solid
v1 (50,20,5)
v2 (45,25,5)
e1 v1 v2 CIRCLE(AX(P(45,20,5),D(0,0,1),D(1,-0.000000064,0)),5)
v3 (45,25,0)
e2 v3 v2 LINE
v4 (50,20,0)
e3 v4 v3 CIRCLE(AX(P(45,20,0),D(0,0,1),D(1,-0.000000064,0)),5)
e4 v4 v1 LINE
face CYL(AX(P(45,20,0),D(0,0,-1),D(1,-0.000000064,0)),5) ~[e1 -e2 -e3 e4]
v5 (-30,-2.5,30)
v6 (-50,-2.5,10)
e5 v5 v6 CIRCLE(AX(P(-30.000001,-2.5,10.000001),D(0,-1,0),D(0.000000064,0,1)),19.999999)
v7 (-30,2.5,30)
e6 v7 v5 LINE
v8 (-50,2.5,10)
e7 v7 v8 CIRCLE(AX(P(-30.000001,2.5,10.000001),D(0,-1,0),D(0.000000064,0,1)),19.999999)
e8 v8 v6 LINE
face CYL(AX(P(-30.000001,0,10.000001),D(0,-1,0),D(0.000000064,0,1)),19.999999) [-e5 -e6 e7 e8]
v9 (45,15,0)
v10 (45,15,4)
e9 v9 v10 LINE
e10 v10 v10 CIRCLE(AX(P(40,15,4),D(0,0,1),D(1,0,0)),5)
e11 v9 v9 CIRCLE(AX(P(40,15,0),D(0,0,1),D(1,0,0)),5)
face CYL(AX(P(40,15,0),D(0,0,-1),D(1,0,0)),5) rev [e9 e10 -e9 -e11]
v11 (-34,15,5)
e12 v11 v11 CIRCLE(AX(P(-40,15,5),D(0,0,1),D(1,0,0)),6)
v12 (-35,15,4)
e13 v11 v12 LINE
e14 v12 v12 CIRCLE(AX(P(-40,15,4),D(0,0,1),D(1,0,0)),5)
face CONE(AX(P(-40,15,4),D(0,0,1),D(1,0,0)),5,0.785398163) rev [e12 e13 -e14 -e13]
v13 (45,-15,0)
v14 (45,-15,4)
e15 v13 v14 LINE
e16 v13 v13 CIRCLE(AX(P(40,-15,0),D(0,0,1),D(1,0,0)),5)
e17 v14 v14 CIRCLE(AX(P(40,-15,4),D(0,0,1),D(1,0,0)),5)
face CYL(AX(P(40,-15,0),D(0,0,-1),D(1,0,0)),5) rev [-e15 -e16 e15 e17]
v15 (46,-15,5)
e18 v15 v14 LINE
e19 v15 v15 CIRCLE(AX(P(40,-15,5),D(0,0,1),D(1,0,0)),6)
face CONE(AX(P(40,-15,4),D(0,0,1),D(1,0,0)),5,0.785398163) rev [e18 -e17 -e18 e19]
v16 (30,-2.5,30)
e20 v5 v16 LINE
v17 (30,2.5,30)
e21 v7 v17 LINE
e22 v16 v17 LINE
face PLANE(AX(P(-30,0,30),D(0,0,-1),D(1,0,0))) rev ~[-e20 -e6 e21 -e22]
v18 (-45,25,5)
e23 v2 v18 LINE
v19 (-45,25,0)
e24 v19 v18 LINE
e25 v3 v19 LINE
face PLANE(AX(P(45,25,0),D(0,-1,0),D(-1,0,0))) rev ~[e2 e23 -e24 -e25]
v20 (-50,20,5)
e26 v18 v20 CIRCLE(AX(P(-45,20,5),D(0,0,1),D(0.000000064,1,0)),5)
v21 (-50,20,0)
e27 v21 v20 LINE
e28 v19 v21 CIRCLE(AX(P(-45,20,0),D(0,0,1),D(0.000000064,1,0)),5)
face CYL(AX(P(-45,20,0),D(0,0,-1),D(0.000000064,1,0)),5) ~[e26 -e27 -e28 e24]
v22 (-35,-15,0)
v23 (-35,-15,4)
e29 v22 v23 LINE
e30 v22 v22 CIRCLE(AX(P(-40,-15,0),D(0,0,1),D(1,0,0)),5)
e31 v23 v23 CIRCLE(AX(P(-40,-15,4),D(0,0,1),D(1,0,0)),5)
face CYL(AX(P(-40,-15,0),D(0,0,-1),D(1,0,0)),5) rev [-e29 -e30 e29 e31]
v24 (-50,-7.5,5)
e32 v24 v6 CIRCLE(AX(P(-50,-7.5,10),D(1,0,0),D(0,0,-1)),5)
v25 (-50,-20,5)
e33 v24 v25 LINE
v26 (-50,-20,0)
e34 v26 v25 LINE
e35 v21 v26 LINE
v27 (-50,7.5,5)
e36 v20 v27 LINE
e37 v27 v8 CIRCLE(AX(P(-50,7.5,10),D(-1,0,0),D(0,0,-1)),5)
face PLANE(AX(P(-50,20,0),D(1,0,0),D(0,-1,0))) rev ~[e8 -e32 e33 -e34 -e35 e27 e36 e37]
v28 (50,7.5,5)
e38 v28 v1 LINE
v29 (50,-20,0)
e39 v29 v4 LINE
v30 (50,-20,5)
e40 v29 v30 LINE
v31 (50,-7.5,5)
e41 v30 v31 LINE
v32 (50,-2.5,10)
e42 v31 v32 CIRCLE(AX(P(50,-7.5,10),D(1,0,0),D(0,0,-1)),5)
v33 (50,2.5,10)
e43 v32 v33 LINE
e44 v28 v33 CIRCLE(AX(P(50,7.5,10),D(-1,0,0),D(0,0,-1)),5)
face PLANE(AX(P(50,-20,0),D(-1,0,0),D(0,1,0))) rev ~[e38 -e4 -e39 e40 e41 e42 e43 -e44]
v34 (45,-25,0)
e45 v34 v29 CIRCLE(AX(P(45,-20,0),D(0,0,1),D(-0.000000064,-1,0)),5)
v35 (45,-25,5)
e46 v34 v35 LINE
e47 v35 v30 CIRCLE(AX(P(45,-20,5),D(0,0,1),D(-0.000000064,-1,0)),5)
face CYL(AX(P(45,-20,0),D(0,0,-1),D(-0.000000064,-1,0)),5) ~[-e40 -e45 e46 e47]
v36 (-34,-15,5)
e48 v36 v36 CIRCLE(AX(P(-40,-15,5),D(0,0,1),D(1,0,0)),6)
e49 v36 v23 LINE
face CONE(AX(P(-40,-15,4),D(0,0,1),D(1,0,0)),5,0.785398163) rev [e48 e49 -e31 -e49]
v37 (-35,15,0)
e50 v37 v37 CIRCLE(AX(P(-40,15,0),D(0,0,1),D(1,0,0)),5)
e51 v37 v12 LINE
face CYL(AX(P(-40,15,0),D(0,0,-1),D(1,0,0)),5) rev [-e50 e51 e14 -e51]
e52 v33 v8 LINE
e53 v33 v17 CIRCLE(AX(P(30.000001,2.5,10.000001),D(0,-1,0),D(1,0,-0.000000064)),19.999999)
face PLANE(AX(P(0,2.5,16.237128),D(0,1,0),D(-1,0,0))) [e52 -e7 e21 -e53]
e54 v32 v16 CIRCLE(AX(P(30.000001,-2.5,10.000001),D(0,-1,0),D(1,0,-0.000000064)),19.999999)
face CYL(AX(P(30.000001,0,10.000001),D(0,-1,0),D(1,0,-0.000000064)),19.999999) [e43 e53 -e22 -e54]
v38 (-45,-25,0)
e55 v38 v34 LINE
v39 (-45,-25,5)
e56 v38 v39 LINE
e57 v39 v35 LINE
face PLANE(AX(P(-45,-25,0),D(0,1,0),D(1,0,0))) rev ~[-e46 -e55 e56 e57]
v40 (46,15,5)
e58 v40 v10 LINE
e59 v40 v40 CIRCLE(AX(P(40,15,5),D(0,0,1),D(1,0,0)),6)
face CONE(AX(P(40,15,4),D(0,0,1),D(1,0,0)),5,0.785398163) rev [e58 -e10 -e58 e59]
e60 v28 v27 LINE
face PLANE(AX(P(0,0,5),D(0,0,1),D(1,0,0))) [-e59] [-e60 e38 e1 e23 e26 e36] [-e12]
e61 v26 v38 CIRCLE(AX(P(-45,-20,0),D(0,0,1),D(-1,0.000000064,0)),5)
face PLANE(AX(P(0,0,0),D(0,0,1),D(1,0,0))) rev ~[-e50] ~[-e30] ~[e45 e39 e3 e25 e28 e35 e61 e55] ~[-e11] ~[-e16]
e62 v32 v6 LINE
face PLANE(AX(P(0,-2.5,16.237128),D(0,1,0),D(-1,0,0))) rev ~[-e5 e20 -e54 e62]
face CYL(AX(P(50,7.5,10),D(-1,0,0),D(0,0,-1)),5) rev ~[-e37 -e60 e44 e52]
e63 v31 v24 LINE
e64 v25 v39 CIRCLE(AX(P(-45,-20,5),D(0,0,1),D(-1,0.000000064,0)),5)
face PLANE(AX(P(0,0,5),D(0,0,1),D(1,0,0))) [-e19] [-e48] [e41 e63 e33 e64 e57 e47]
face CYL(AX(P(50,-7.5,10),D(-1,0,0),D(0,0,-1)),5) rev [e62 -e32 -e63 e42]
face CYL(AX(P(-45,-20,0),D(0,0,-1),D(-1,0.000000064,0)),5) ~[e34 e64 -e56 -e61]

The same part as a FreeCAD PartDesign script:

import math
import FreeCAD as App
import Part
import Sketcher
from FreeCAD import Vector


def edges_at(feature, points):
    """Names of the edges that pass closest to the given points."""
    edges = feature.Shape.Edges
    near = lambda p: min(range(len(edges)), key=lambda i: edges[i].distToShape(Part.Vertex(*p))[0])
    return sorted({f"Edge{near(p) + 1}" for p in points})

doc = App.newDocument("Part")
body = doc.addObject("PartDesign::Body", "Body")

# Sketch on XY plane
sketch1 = doc.addObject("Sketcher::SketchObject", "Sketch")
body.addObject(sketch1)
sketch1.AttachmentSupport = (doc.XY_Plane, [""])
sketch1.MapMode = "FlatFace"
sketch1.addGeometry([
    Part.LineSegment(Vector(-50, 20, 0), Vector(-50, -20, 0)),  # 0
    Part.ArcOfCircle(Part.Circle(Vector(-45, -20, 0), Vector(0, 0, 1), 5), math.radians(179.999996), math.radians(270.000004)),  # 1
    Part.LineSegment(Vector(-45, -25, 0), Vector(45, -25, 0)),  # 2
    Part.ArcOfCircle(Part.Circle(Vector(45, -20, 0), Vector(0, 0, 1), 5), math.radians(-90.000004), math.radians(0.000004)),  # 3
    Part.LineSegment(Vector(50, -20, 0), Vector(50, 20, 0)),  # 4
    Part.ArcOfCircle(Part.Circle(Vector(45, 20, 0), Vector(0, 0, 1), 5), math.radians(-0.000004), math.radians(90.000004)),  # 5
    Part.LineSegment(Vector(45, 25, 0), Vector(-45, 25, 0)),  # 6
    Part.ArcOfCircle(Part.Circle(Vector(-45, 20, 0), Vector(0, 0, 1), 5), math.radians(89.999996), math.radians(180.000004)),  # 7
    Part.Circle(Vector(-40, -15, 0), Vector(0, 0, 1), 5),  # 8
    Part.Circle(Vector(40, -15, 0), Vector(0, 0, 1), 5),  # 9
    Part.Circle(Vector(-40, 15, 0), Vector(0, 0, 1), 5),  # 10
    Part.Circle(Vector(40, 15, 0), Vector(0, 0, 1), 5),  # 11
], False)
sketch1.addConstraint([
    Sketcher.Constraint("Tangent", 0, 2, 1, 1),
    Sketcher.Constraint("Tangent", 1, 2, 2, 1),
    Sketcher.Constraint("Tangent", 2, 2, 3, 1),
    Sketcher.Constraint("Tangent", 3, 2, 4, 1),
    Sketcher.Constraint("Tangent", 4, 2, 5, 1),
    Sketcher.Constraint("Tangent", 5, 2, 6, 1),
    Sketcher.Constraint("Tangent", 6, 2, 7, 1),
    Sketcher.Constraint("Tangent", 7, 2, 0, 1),
    Sketcher.Constraint("Vertical", 0),
    Sketcher.Constraint("Horizontal", 2),
    Sketcher.Constraint("Vertical", 4),
    Sketcher.Constraint("Horizontal", 6),
    Sketcher.Constraint("Equal", 1, 3),
    Sketcher.Constraint("Equal", 3, 5),
    Sketcher.Constraint("Equal", 5, 7),
    Sketcher.Constraint("Equal", 7, 8),
    Sketcher.Constraint("Equal", 8, 9),
    Sketcher.Constraint("Equal", 9, 10),
    Sketcher.Constraint("Equal", 10, 11),
    Sketcher.Constraint("Symmetric", 1, 3, 5, 3, -1, 1),
    Sketcher.Constraint("Symmetric", 9, 3, 10, 3, -1, 1),
    Sketcher.Constraint("Symmetric", 8, 3, 11, 3, -1, 1),
    Sketcher.Constraint("Symmetric", 8, 3, 9, 3, -2),
    Sketcher.Constraint("Diameter", 8, 10.0),
    Sketcher.Constraint("DistanceX", 2, 1, 2, 2, 90.0),
    Sketcher.Constraint("DistanceY", 0, 2, 0, 1, 40.0),
    Sketcher.Constraint("DistanceX", 8, 3, -1, 1, 40.0),
    Sketcher.Constraint("DistanceY", 8, 3, -1, 1, 15.0),
])
pad1 = doc.addObject("PartDesign::Pad", "Pad")
body.addObject(pad1)
pad1.Profile = sketch1
pad1.Length = 5

# Sketch on XZ plane
sketch2 = doc.addObject("Sketcher::SketchObject", "Sketch001")
body.addObject(sketch2)
sketch2.AttachmentSupport = (doc.XZ_Plane, [""])
sketch2.MapMode = "FlatFace"
sketch2.addGeometry([
    Part.LineSegment(Vector(30, 30, 0), Vector(-30, 30, 0)),  # 0
    Part.ArcOfCircle(Part.Circle(Vector(-30.000001, 10.000001, 0), Vector(0, 0, 1), 19.999999), math.radians(89.999996), math.radians(180.000004)),  # 1
    Part.LineSegment(Vector(-50, 10, 0), Vector(-50, 5, 0)),  # 2
    Part.LineSegment(Vector(-50, 5, 0), Vector(50, 5, 0)),  # 3
    Part.LineSegment(Vector(50, 5, 0), Vector(50, 10, 0)),  # 4
    Part.ArcOfCircle(Part.Circle(Vector(30.000001, 10.000001, 0), Vector(0, 0, 1), 19.999999), math.radians(-0.000004), math.radians(90.000004)),  # 5
], False)
sketch2.addConstraint([
    Sketcher.Constraint("Tangent", 0, 2, 1, 1),
    Sketcher.Constraint("Tangent", 1, 2, 2, 1),
    Sketcher.Constraint("Coincident", 2, 2, 3, 1),
    Sketcher.Constraint("Coincident", 3, 2, 4, 1),
    Sketcher.Constraint("Tangent", 4, 2, 5, 1),
    Sketcher.Constraint("Tangent", 5, 2, 0, 1),
    Sketcher.Constraint("Horizontal", 0),
    Sketcher.Constraint("Vertical", 2),
    Sketcher.Constraint("Horizontal", 3),
    Sketcher.Constraint("Vertical", 4),
    Sketcher.Constraint("Equal", 1, 5),
    Sketcher.Constraint("Radius", 1, 19.999999),
    Sketcher.Constraint("DistanceX", 0, 2, 0, 1, 60.0),
    Sketcher.Constraint("DistanceY", 2, 2, 2, 1, 5.0),
    Sketcher.Constraint("DistanceX", 1, 3, -1, 1, 30.000001),
    Sketcher.Constraint("DistanceY", -1, 1, 1, 3, 10.000001),
])
pad2 = doc.addObject("PartDesign::Pad", "Pad001")
body.addObject(pad2)
pad2.Profile = sketch2
pad2.Length = 5
pad2.Midplane = True
doc.recompute()

fillet = doc.addObject("PartDesign::Fillet", "Fillet")
body.addObject(fillet)
fillet.Base = (pad2, edges_at(pad2, [(0, -2.5, 5), (0, 2.5, 5)]))
fillet.Radius = 5
doc.recompute()

chamfer = doc.addObject("PartDesign::Chamfer", "Chamfer")
body.addObject(chamfer)
chamfer.Base = (fillet, edges_at(fillet, [
    (35, -15, 5),
    (-45, -15, 5),
    (-45, 15, 5),
    (35, 15, 5),
]))
chamfer.Size = 1

doc.recompute()
